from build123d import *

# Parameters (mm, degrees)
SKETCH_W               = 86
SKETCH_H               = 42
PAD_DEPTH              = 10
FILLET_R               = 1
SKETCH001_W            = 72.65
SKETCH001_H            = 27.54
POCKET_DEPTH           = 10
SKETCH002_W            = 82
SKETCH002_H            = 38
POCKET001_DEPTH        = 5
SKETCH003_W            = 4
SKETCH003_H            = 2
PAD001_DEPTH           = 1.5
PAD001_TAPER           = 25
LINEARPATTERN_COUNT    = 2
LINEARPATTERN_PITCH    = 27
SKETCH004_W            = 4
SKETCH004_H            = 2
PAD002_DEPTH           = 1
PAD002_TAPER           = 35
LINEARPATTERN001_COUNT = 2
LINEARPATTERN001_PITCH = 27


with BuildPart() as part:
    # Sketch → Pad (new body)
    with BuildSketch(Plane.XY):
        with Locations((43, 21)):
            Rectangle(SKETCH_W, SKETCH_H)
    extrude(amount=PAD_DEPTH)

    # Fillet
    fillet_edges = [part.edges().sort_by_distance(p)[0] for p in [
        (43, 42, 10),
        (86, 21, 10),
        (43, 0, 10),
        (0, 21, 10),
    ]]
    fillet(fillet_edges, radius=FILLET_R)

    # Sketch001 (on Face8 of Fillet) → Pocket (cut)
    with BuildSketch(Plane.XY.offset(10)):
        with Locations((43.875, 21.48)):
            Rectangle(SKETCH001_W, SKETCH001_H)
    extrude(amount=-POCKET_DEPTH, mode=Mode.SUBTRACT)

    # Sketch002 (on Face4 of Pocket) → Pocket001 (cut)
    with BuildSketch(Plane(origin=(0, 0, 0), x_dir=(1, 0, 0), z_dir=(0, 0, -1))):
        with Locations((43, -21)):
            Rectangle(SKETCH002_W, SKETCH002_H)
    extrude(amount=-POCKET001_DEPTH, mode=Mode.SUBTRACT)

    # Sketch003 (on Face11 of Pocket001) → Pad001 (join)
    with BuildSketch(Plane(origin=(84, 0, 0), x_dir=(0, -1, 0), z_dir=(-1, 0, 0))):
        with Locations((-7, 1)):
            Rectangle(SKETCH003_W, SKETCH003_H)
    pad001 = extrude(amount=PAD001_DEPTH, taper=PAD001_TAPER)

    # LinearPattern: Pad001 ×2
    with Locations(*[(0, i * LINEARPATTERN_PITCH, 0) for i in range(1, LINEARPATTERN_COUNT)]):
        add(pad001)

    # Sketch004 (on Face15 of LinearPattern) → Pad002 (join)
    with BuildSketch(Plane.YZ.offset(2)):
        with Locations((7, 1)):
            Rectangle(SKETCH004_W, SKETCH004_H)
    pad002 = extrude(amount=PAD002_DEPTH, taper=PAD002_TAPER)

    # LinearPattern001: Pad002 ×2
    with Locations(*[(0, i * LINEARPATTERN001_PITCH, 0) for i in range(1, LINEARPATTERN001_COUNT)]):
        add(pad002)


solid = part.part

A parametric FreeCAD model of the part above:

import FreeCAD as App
import Part
import Sketcher
from FreeCAD import Vector
Q = App.Units.Quantity


def edges_at(feature, points):
    """Names of the edges that pass closest to the given points."""
    edges = feature.Shape.Edges
    near = lambda p: min(range(len(edges)), key=lambda i: edges[i].distToShape(Part.Vertex(*p))[0])
    return sorted({f"Edge{near(p) + 1}" for p in points})


def add_polygon(sketch, points):
    """Adds a closed chain of lines whose ends are joined by coincident constraints."""
    first, n = sketch.GeometryCount, len(points)
    for a, b in zip(points, points[1:] + points[:1]):
        sketch.addGeometry(Part.LineSegment(App.Vector(*a, 0), App.Vector(*b, 0)), False)
    for i in range(n):
        sketch.addConstraint(Sketcher.Constraint("Coincident", first + i, 2, first + (i + 1) % n, 1))

doc = App.newDocument("Part")
body = doc.addObject("PartDesign::Body", "Body")

# Sketch on XY plane
sketch1 = doc.addObject("Sketcher::SketchObject", "Sketch")
body.addObject(sketch1)
sketch1.AttachmentSupport = (doc.XY_Plane, [""])
sketch1.MapMode = "FlatFace"
add_polygon(sketch1, [(0, 42), (0, 0), (86, 0), (86, 42)])  # lines 0-3
sketch1.addConstraint([
    Sketcher.Constraint("Vertical", 0),
    Sketcher.Constraint("Horizontal", 1),
    Sketcher.Constraint("Vertical", 2),
    Sketcher.Constraint("Horizontal", 3),
    Sketcher.Constraint("Coincident", 0, 2, -1, 1),
    Sketcher.Constraint("DistanceX", 1, 1, 1, 2, Q("86 mm")),
    Sketcher.Constraint("DistanceY", 0, 2, 0, 1, Q("42 mm")),
])
pad1 = doc.addObject("PartDesign::Pad", "Pad")
body.addObject(pad1)
pad1.Profile = sketch1
pad1.Length = 10
doc.recompute()

fillet = doc.addObject("PartDesign::Fillet", "Fillet")
body.addObject(fillet)
fillet.Base = (pad1, edges_at(pad1, [
    (43, 42, 10),
    (86, 21, 10),
    (43, 0, 10),
    (0, 21, 10),
]))
fillet.Radius = 1

# Sketch on XY plane
sketch2 = doc.addObject("Sketcher::SketchObject", "Sketch001")
body.addObject(sketch2)
sketch2.AttachmentSupport = (doc.XY_Plane, [""])
sketch2.MapMode = "FlatFace"
sketch2.AttachmentOffset = App.Placement(Vector(0, 0, 10), App.Rotation())
add_polygon(sketch2, [(7.55, 35.25), (7.55, 7.71), (80.2, 7.71), (80.2, 35.25)])  # lines 0-3
sketch2.addConstraint([
    Sketcher.Constraint("Vertical", 0),
    Sketcher.Constraint("Horizontal", 1),
    Sketcher.Constraint("Vertical", 2),
    Sketcher.Constraint("Horizontal", 3),
    Sketcher.Constraint("DistanceX", 1, 1, 1, 2, Q("72.65 mm")),
    Sketcher.Constraint("DistanceY", 0, 2, 0, 1, Q("27.54 mm")),
    Sketcher.Constraint("DistanceX", -1, 1, 1, 2, Q("80.2 mm")),
    Sketcher.Constraint("DistanceY", -1, 1, 0, 2, Q("7.71 mm")),
])
pocket1 = doc.addObject("PartDesign::Pocket", "Pocket")
body.addObject(pocket1)
pocket1.Profile = sketch2
pocket1.Length = 10

# Sketch on XY plane
sketch3 = doc.addObject("Sketcher::SketchObject", "Sketch002")
body.addObject(sketch3)
sketch3.AttachmentSupport = (doc.XY_Plane, [""])
sketch3.MapMode = "FlatFace"
add_polygon(sketch3, [(2, 2), (2, 40), (84, 40), (84, 2)])  # lines 0-3
sketch3.addConstraint([
    Sketcher.Constraint("Vertical", 0),
    Sketcher.Constraint("Horizontal", 1),
    Sketcher.Constraint("Vertical", 2),
    Sketcher.Constraint("Horizontal", 3),
    Sketcher.Constraint("DistanceX", 1, 1, 1, 2, Q("82 mm")),
    Sketcher.Constraint("DistanceY", 0, 1, 0, 2, Q("38 mm")),
    Sketcher.Constraint("DistanceX", -1, 1, 0, 2, Q("2 mm")),
    Sketcher.Constraint("DistanceY", -1, 1, 0, 2, Q("40 mm")),
])
pocket2 = doc.addObject("PartDesign::Pocket", "Pocket001")
body.addObject(pocket2)
pocket2.Profile = sketch3
pocket2.Length = 5
pocket2.Reversed = True

# Sketch on YZ plane
sketch4 = doc.addObject("Sketcher::SketchObject", "Sketch003")
body.addObject(sketch4)
sketch4.AttachmentSupport = (doc.YZ_Plane, [""])
sketch4.MapMode = "FlatFace"
sketch4.AttachmentOffset = App.Placement(Vector(0, 0, 84), App.Rotation())
add_polygon(sketch4, [(9, 2), (9, 0), (5, 0), (5, 2)])  # lines 0-3
sketch4.addConstraint([
    Sketcher.Constraint("Vertical", 0),
    Sketcher.Constraint("Horizontal", 1),
    Sketcher.Constraint("Vertical", 2),
    Sketcher.Constraint("Horizontal", 3),
    Sketcher.Constraint("PointOnObject", 0, 2, -1),
    Sketcher.Constraint("DistanceX", 1, 2, 1, 1, Q("4 mm")),
    Sketcher.Constraint("DistanceY", 0, 2, 0, 1, Q("2 mm")),
    Sketcher.Constraint("DistanceX", -1, 1, 0, 2, Q("9 mm")),
])
pad2 = doc.addObject("PartDesign::Pad", "Pad001")
body.addObject(pad2)
pad2.Profile = sketch4
pad2.Length = 1.5
pad2.Reversed = True
pad2.TaperAngle = -25
doc.recompute()

linearpattern = doc.addObject("PartDesign::LinearPattern", "LinearPattern")
body.addObject(linearpattern)
linearpattern.Originals = [pad2]
linearpattern.Direction = (doc.Y_Axis, [""])
linearpattern.Mode = "offset"
linearpattern.Offset = 27
linearpattern.Occurrences = 2
body.Tip = linearpattern

# Sketch on YZ plane
sketch5 = doc.addObject("Sketcher::SketchObject", "Sketch004")
body.addObject(sketch5)
sketch5.AttachmentSupport = (doc.YZ_Plane, [""])
sketch5.MapMode = "FlatFace"
sketch5.AttachmentOffset = App.Placement(Vector(0, 0, 2), App.Rotation())
add_polygon(sketch5, [(5, 2), (5, 0), (9, 0), (9, 2)])  # lines 0-3
sketch5.addConstraint([
    Sketcher.Constraint("Vertical", 0),
    Sketcher.Constraint("Horizontal", 1),
    Sketcher.Constraint("Vertical", 2),
    Sketcher.Constraint("Horizontal", 3),
    Sketcher.Constraint("PointOnObject", 0, 2, -1),
    Sketcher.Constraint("DistanceX", 1, 1, 1, 2, Q("4 mm")),
    Sketcher.Constraint("DistanceY", 0, 2, 0, 1, Q("2 mm")),
    Sketcher.Constraint("DistanceX", -1, 1, 0, 2, Q("5 mm")),
])
pad3 = doc.addObject("PartDesign::Pad", "Pad002")
body.addObject(pad3)
pad3.Profile = sketch5
pad3.Length = 1
pad3.TaperAngle = -35
doc.recompute()

linearpattern2 = doc.addObject("PartDesign::LinearPattern", "LinearPattern001")
body.addObject(linearpattern2)
linearpattern2.Originals = [pad3]
linearpattern2.Direction = (doc.Y_Axis, [""])
linearpattern2.Mode = "offset"
linearpattern2.Offset = 27
linearpattern2.Occurrences = 2
body.Tip = linearpattern2

doc.recompute()
